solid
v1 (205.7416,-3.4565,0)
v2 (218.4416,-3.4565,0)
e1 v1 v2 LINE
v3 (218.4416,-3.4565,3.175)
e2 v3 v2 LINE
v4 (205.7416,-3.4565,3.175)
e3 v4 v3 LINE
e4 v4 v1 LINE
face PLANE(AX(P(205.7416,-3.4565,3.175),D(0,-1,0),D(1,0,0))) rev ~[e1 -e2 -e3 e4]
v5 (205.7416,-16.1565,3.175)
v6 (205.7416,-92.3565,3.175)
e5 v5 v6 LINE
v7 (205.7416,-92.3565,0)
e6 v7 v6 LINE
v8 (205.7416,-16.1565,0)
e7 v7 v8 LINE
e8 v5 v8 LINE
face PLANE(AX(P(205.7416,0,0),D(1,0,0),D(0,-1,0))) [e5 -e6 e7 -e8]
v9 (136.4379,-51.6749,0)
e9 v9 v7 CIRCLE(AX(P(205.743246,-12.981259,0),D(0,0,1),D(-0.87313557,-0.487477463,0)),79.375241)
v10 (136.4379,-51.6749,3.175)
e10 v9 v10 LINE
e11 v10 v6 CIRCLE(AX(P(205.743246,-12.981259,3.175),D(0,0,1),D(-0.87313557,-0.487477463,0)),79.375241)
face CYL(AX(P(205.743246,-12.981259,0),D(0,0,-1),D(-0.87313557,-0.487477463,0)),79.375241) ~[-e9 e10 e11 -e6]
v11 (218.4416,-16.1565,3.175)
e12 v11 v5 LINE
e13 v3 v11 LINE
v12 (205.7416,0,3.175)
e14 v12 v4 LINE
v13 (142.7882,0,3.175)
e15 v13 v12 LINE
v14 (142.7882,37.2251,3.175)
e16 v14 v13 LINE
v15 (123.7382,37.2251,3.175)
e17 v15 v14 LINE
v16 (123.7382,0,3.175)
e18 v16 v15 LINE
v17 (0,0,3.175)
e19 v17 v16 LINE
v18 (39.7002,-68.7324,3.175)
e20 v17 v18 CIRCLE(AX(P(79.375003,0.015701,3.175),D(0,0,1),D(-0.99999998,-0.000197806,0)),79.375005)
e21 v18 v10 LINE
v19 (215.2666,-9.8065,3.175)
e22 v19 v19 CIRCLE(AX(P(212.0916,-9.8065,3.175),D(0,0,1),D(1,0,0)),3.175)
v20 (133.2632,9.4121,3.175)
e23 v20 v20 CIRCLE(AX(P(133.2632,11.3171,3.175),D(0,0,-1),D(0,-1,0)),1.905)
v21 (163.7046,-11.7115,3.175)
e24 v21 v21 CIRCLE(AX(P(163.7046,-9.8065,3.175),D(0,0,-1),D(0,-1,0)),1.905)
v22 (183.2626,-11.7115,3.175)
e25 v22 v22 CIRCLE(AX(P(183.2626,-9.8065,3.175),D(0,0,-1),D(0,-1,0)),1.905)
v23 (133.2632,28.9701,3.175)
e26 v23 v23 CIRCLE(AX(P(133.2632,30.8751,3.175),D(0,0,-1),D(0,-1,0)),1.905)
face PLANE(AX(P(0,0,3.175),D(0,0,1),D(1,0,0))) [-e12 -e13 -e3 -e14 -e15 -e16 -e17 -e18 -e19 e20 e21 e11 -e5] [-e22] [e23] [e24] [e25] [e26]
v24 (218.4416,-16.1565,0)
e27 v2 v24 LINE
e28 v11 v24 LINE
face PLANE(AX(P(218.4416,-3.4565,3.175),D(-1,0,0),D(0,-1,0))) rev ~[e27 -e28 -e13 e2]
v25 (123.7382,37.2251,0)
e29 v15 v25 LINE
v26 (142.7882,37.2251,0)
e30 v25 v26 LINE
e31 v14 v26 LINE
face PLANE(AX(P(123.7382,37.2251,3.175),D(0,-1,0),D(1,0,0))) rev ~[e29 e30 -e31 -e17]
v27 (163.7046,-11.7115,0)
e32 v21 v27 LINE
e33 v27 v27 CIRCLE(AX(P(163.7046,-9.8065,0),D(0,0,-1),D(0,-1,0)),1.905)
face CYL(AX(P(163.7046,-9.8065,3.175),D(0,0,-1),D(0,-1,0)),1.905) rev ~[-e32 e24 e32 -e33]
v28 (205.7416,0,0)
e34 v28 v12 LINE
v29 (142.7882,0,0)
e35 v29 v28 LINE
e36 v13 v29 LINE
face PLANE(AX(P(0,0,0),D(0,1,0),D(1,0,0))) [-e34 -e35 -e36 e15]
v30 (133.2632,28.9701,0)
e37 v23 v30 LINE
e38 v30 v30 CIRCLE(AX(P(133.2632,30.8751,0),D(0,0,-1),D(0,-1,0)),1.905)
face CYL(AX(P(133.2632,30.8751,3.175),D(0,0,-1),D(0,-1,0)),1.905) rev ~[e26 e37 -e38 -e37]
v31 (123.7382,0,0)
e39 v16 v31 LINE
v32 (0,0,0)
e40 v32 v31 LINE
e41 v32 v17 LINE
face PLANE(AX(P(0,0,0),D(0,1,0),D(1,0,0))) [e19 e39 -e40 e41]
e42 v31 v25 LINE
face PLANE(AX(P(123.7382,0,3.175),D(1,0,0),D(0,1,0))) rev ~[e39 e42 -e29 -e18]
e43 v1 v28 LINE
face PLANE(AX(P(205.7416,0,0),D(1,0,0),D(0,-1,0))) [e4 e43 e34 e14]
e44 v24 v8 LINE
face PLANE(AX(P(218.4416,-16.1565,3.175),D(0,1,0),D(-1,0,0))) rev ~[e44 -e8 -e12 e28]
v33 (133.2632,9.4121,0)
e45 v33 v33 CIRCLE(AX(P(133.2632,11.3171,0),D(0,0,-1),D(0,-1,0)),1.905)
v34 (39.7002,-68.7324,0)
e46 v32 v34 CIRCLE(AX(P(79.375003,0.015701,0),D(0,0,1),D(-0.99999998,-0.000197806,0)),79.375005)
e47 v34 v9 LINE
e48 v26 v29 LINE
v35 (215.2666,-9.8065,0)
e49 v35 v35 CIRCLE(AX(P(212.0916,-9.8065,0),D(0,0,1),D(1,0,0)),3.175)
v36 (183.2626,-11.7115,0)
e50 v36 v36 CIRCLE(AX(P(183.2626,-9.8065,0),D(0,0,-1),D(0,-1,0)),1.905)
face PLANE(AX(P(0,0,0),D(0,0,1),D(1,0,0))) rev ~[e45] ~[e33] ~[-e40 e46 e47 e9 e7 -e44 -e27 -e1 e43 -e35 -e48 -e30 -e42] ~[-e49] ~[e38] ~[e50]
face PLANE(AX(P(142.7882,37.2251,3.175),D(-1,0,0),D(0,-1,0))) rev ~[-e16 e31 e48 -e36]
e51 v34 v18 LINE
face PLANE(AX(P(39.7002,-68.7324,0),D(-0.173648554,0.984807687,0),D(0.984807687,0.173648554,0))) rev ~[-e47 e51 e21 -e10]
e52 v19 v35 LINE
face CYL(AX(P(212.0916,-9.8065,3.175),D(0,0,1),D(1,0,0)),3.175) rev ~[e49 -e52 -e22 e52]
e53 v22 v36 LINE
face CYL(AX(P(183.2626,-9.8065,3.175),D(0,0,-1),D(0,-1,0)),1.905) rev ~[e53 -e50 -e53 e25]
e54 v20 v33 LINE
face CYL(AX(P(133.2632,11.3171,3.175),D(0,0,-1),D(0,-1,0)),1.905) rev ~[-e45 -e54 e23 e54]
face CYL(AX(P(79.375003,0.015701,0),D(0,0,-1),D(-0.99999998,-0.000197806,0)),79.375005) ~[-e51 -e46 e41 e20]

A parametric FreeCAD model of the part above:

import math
import FreeCAD as App
import Part
import Sketcher

V = App.Vector
Q = App.Units.Quantity


def add_polygon(sketch, points):
    """Adds a closed chain of lines whose ends are joined by coincident constraints."""
    first, n = sketch.GeometryCount, len(points)
    for a, b in zip(points, points[1:] + points[:1]):
        sketch.addGeometry(Part.LineSegment(App.Vector(*a, 0), App.Vector(*b, 0)), False)
    for i in range(n):
        sketch.addConstraint(Sketcher.Constraint("Coincident", first + i, 2, first + (i + 1) % n, 1))

doc = App.newDocument("Part")
body = doc.addObject("PartDesign::Body", "Body")

# Sketch on XY plane
sketch1 = body.newObject("Sketcher::SketchObject", "Sketch")
sketch1.AttachmentSupport = (doc.getObject("XY_Plane"), [""])
sketch1.MapMode = "FlatFace"
sketch1.addGeometry(Part.LineSegment(V(206, 0, 0), V(0, 0, 0)), False)
sketch1.addGeometry(Part.ArcOfCircle(Part.Circle(V(79, 0, 0), V(0, 0, 1), 79), math.radians(-180), math.radians(-120)), False)
sketch1.addGeometry(Part.LineSegment(V(40, -69, 0), V(136, -52, 0)), False)
sketch1.addGeometry(Part.ArcOfCircle(Part.Circle(V(206, -13, 0), V(0, 0, 1), 79), math.radians(-151), math.radians(-90)), False)
sketch1.addGeometry(Part.LineSegment(V(206, -92, 0), V(206, 0, 0)), False)
sketch1.addConstraint(Sketcher.Constraint("Coincident", 0, 2, 1, 1))
sketch1.addConstraint(Sketcher.Constraint("Coincident", 1, 2, 2, 1))
sketch1.addConstraint(Sketcher.Constraint("Coincident", 2, 2, 3, 1))
sketch1.addConstraint(Sketcher.Constraint("Coincident", 3, 2, 4, 1))
sketch1.addConstraint(Sketcher.Constraint("Coincident", 4, 2, 0, 1))
sketch1.addConstraint(Sketcher.Constraint("Horizontal", 0))
sketch1.addConstraint(Sketcher.Constraint("Vertical", 4))
sketch1.addConstraint(Sketcher.Constraint("Coincident", 0, 2, -1, 1))
sketch1.addConstraint(Sketcher.Constraint("Equal", 1, 3))
sketch1.addConstraint(Sketcher.Constraint("Angle", 2, Q("10 deg")))
sketch1.addConstraint(Sketcher.Constraint("Radius", 1, Q("3.125 in")))
sketch1.addConstraint(Sketcher.Constraint("DistanceX", -1, 1, 1, 2, Q("1.563 in")))
sketch1.addConstraint(Sketcher.Constraint("DistanceY", 1, 2, -1, 1, Q("2.706 in")))
sketch1.addConstraint(Sketcher.Constraint("DistanceX", 0, 2, 0, 1, 205.7416))
sketch1.addConstraint(Sketcher.Constraint("DistanceY", 4, 1, 4, 2, 92.3565))
sketch1.addConstraint(Sketcher.Constraint("DistanceX", 2, 2, 3, 2, Q("2.7285 in")))
pad1 = body.newObject("PartDesign::Pad", "Pad")
pad1.Profile = sketch1
pad1.Length = Q("0.125 in")

# Sketch on XY plane
sketch2 = body.newObject("Sketcher::SketchObject", "Sketch001")
sketch2.AttachmentSupport = (doc.getObject("XY_Plane"), [""])
sketch2.MapMode = "FlatFace"
sketch2.AttachmentOffset = App.Placement(V(0, 0, 0.125 * 25.4), App.Rotation())
add_polygon(sketch2, [(205.7, -3.5), (205.7, -16.2), (218.4, -16.2), (218.4, -3.5)])  # lines 0-3
sketch2.addGeometry(Part.Circle(V(212.1, -9.8, 0), V(0, 0, 1), 3.2), False)  # 4
sketch2.addConstraint(Sketcher.Constraint("Vertical", 0))
sketch2.addConstraint(Sketcher.Constraint("Horizontal", 1))
sketch2.addConstraint(Sketcher.Constraint("Vertical", 2))
sketch2.addConstraint(Sketcher.Constraint("Horizontal", 3))
sketch2.addConstraint(Sketcher.Constraint("Equal", 3, 0))
sketch2.addConstraint(Sketcher.Constraint("Diameter", 4, Q("0.25 in")))
sketch2.addConstraint(Sketcher.Constraint("DistanceX", 1, 1, 1, 2, Q("0.5 in")))
sketch2.addConstraint(Sketcher.Constraint("DistanceX", 0, 2, 4, 3, Q("0.25 in")))
sketch2.addConstraint(Sketcher.Constraint("DistanceY", 0, 2, 4, 3, Q("0.25 in")))
sketch2.addConstraint(Sketcher.Constraint("DistanceX", -1, 1, 4, 3, 212.0916))
sketch2.addConstraint(Sketcher.Constraint("DistanceY", 4, 3, -1, 1, 9.8065))
pad2 = body.newObject("PartDesign::Pad", "Pad001")
pad2.Profile = sketch2
pad2.Length = Q("0.125 in")
pad2.Reversed = True

# Sketch on XY plane
sketch3 = body.newObject("Sketcher::SketchObject", "Sketch002")
sketch3.AttachmentSupport = (doc.getObject("XY_Plane"), [""])
sketch3.MapMode = "FlatFace"
sketch3.AttachmentOffset = App.Placement(V(0, 0, 0.125 * 25.4), App.Rotation())
add_polygon(sketch3, [(124, 37), (124, 0), (143, 0), (143, 37)])  # lines 0-3
sketch3.addConstraint(Sketcher.Constraint("Vertical", 0))
sketch3.addConstraint(Sketcher.Constraint("Horizontal", 1))
sketch3.addConstraint(Sketcher.Constraint("Vertical", 2))
sketch3.addConstraint(Sketcher.Constraint("Horizontal", 3))
sketch3.addConstraint(Sketcher.Constraint("PointOnObject", 0, 2, -1))
sketch3.addConstraint(Sketcher.Constraint("DistanceX", 1, 1, 1, 2, Q("0.75 in")))
sketch3.addConstraint(Sketcher.Constraint("DistanceY", 0, 2, 0, 1, 37.225))
sketch3.addConstraint(Sketcher.Constraint("DistanceX", -1, 1, 0, 2, 123.7382))
pad3 = body.newObject("PartDesign::Pad", "Pad002")
pad3.Profile = sketch3
pad3.Length = Q("0.125 in")
pad3.Reversed = True

# Sketch on XY plane
sketch4 = body.newObject("Sketcher::SketchObject", "Sketch003")
sketch4.AttachmentSupport = (doc.getObject("XY_Plane"), [""])
sketch4.MapMode = "FlatFace"
sketch4.AttachmentOffset = App.Placement(V(0, 0, 0.125 * 25.4), App.Rotation())
sketch4.addGeometry(Part.Circle(V(133.3, 30.9, 0), V(0, 0, 1), 1.9), False)
sketch4.addGeometry(Part.Circle(V(133.3, 11.3, 0), V(0, 0, 1), 1.9), False)
sketch4.addGeometry(Part.Circle(V(183.3, -9.8, 0), V(0, 0, 1), 1.9), False)
sketch4.addGeometry(Part.Circle(V(163.7, -9.8, 0), V(0, 0, 1), 1.9), False)
sketch4.addConstraint(Sketcher.Constraint("Equal", 0, 1))
sketch4.addConstraint(Sketcher.Constraint("Equal", 1, 2))
sketch4.addConstraint(Sketcher.Constraint("Equal", 2, 3))
sketch4.addConstraint(Sketcher.Constraint("Horizontal", 2, 3, 3, 3))
sketch4.addConstraint(Sketcher.Constraint("Vertical", 0, 3, 1, 3))
sketch4.addConstraint(Sketcher.Constraint("Diameter", 0, Q("0.15 in")))
sketch4.addConstraint(Sketcher.Constraint("DistanceY", 1, 3, 0, 3, Q("0.77 in")))
sketch4.addConstraint(Sketcher.Constraint("DistanceX", 3, 3, 2, 3, Q("0.77 in")))
sketch4.addConstraint(Sketcher.Constraint("DistanceX", -1, 1, 0, 3, 133.2632))
sketch4.addConstraint(Sketcher.Constraint("DistanceY", -1, 1, 0, 3, 30.875))
sketch4.addConstraint(Sketcher.Constraint("DistanceX", -1, 1, 2, 3, 183.2626))
sketch4.addConstraint(Sketcher.Constraint("DistanceY", 2, 3, -1, 1, 9.8065))
doc.recompute()
hole = body.newObject("PartDesign::Hole", "Hole")
hole.Profile = sketch4
hole.ThreadType = "None"
hole.Diameter = Q("0.15 in")
hole.DepthType = "ThroughAll"

doc.recompute()
